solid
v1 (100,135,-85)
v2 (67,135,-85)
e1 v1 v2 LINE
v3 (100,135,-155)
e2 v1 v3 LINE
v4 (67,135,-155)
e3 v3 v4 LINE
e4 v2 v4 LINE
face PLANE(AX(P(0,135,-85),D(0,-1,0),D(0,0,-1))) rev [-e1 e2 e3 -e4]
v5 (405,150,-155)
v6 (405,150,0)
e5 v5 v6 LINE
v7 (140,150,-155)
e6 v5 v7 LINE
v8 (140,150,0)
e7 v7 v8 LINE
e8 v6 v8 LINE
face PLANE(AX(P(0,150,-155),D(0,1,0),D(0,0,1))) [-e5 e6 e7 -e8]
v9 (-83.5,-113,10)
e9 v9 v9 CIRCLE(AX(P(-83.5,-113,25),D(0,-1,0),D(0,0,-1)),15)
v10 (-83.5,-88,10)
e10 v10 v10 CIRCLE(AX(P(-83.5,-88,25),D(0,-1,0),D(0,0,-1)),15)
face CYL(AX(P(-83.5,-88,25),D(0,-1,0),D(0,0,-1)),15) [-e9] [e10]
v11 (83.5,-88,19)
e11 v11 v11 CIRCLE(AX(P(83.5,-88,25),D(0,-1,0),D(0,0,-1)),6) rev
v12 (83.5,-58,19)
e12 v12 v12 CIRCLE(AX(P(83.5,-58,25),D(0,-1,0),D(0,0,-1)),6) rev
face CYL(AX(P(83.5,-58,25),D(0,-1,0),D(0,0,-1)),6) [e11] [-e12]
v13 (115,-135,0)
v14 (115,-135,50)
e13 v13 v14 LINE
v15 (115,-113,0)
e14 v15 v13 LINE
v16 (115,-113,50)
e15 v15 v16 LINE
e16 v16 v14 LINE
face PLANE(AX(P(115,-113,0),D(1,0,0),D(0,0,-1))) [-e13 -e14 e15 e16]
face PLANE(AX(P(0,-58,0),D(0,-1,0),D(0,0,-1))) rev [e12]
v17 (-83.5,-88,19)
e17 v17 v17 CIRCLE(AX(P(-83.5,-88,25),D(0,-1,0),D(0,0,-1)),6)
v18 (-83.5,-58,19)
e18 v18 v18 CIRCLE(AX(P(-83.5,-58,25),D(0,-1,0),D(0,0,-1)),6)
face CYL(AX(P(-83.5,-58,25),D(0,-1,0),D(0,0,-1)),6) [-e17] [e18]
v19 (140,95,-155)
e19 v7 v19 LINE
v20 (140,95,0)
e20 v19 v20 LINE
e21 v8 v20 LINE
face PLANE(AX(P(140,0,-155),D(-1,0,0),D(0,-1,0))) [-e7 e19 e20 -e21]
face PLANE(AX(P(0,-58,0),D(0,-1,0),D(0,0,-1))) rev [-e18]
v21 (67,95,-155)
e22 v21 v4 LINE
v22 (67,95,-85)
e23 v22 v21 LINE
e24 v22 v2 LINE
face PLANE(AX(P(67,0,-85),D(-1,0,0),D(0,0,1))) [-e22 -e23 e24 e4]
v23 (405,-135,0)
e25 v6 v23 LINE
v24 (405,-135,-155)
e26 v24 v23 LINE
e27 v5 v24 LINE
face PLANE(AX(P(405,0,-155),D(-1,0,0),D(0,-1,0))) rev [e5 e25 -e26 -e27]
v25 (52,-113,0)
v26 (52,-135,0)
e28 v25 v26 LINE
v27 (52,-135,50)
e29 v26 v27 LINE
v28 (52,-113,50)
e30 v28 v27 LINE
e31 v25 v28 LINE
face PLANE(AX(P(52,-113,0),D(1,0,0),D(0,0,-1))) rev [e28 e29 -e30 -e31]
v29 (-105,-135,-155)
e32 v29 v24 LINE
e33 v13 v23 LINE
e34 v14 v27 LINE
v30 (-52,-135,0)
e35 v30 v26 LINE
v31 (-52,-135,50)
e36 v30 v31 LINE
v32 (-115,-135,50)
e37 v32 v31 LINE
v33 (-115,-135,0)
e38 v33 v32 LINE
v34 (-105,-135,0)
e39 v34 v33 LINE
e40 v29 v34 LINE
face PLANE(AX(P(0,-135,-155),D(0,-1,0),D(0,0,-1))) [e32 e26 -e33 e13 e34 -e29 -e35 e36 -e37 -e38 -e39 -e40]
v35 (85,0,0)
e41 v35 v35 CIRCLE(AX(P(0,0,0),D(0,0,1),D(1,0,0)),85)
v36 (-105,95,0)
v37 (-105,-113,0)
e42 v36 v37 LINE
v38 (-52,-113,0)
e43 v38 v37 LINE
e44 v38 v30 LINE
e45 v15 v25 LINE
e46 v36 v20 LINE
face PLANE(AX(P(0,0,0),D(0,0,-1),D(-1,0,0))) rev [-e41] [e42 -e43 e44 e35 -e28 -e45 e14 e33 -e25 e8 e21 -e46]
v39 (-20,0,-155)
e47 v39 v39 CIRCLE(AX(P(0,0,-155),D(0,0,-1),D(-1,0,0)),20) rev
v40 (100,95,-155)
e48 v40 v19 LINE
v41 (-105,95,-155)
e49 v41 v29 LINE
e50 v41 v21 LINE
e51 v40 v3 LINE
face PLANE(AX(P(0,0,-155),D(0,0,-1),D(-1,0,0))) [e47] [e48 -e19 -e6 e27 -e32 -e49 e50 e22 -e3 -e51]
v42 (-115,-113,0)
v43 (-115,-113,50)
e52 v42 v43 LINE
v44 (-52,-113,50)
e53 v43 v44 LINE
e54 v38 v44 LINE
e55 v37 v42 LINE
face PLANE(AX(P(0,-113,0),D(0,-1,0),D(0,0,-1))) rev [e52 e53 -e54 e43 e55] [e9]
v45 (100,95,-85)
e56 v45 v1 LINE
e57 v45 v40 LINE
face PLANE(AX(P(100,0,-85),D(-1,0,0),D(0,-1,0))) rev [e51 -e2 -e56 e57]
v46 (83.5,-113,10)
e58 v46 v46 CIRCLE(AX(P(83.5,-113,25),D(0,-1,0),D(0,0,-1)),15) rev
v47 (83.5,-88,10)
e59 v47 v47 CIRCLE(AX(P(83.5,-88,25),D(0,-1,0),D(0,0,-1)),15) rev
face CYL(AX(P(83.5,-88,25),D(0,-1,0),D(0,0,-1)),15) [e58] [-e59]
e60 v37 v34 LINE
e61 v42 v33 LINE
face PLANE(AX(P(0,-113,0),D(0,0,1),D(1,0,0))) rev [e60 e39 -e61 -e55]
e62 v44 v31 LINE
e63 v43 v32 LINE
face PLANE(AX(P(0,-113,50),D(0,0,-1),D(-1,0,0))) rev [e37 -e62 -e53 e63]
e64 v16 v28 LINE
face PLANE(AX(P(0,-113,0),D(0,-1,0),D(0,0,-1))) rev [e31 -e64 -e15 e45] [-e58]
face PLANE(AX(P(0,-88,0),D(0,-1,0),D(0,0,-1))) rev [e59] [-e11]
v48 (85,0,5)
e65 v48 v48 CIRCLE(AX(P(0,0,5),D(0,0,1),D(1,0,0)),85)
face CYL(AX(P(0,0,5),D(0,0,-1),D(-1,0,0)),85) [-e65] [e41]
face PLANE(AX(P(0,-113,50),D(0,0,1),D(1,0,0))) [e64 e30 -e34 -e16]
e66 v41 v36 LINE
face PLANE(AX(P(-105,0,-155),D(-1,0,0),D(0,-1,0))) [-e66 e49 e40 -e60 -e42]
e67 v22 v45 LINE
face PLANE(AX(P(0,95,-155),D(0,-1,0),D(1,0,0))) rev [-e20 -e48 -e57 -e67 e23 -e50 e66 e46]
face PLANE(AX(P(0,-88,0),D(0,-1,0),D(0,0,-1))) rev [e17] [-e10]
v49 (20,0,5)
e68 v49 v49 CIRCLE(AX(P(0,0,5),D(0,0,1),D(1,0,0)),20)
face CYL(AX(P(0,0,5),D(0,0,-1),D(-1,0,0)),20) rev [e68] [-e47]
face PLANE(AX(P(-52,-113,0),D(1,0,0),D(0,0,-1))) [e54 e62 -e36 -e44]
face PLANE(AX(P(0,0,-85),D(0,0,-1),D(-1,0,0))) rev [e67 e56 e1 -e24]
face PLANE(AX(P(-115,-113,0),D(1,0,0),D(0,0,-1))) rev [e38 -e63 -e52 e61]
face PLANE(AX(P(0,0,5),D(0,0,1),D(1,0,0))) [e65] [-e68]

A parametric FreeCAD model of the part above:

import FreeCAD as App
import Part
import Sketcher

V = App.Vector
Q = App.Units.Quantity

doc = App.newDocument("Part")
params = doc.addObject("Spreadsheet::Sheet", "Params")
for row, (alias, value) in enumerate([
    ("sketch1_diameter", "170 mm"),
    ("sketch1_diameter2", "40 mm"),
    ("pad1_length", "5 mm"),
    ("sketch2_diameter", "40 mm"),
    ("sketch2_width", "245 mm"),
    ("sketch2_width2", "265 mm"),
    ("sketch2_height", "230 mm"),
    ("sketch2_height2", "55 mm"),
    ("pad2_length", "155 mm"),
    ("sketch3_width", "33 mm"),
    ("sketch3_height", "40 mm"),
    ("pad3_length", "70 mm"),
    ("sketch4_diameter", "30 mm"),
    ("sketch4_width", "63 mm"),
    ("sketch4_height", "50 mm"),
    ("pad4_length", "22 mm"),
    ("sketch5_diameter", "30 mm"),
    ("sketch5_diameter2", "12 mm"),
    ("pad5_length", "47 mm"),
    ("sketch6_diameter", "12 mm"),
    ("pad6_length", "77 mm"),
], start=1):
    params.set(f"A{row}", alias)
    params.set(f"B{row}", "=" + value)
    params.setAlias(f"B{row}", alias)

body = doc.addObject("PartDesign::Body", "Body")

# Sketch on XY plane
sketch1 = doc.addObject("Sketcher::SketchObject", "Sketch")
body.addObject(sketch1)
sketch1.AttachmentSupport = (doc.XY_Plane, [""])
sketch1.MapMode = "FlatFace"
sketch1.addGeometry(Part.Circle(V(0, 0, 0), V(0, 0, 1), 85), False)
sketch1.addGeometry(Part.Circle(V(0, 0, 0), V(0, 0, 1), 20), False)
sketch1.addConstraint(Sketcher.Constraint("Coincident", 0, 3, -1, 1))
sketch1.addConstraint(Sketcher.Constraint("Coincident", 1, 3, -1, 1))
sketch1.addConstraint(Sketcher.Constraint("Diameter", 0, Q("170 mm")))
sketch1.addConstraint(Sketcher.Constraint("Diameter", 1, Q("40 mm")))
sketch1.setExpression("Constraints[2]", "Params.sketch1_diameter")
sketch1.setExpression("Constraints[3]", "Params.sketch1_diameter2")
pad1 = doc.addObject("PartDesign::Pad", "Pad")
body.addObject(pad1)
pad1.Profile = sketch1
pad1.setExpression("Length", "Params.pad1_length")

# Sketch on XY plane
sketch2 = doc.addObject("Sketcher::SketchObject", "Sketch001")
body.addObject(sketch2)
sketch2.AttachmentSupport = (doc.XY_Plane, [""])
sketch2.MapMode = "FlatFace"
sketch2.AttachmentOffset = App.Placement(V(0, 0, -155), App.Rotation())
sketch2.addGeometry(Part.LineSegment(V(-105, -135, 0), V(-105, 95, 0)), False)
sketch2.addGeometry(Part.LineSegment(V(-105, 95, 0), V(140, 95, 0)), False)
sketch2.addGeometry(Part.LineSegment(V(140, 95, 0), V(140, 150, 0)), False)
sketch2.addGeometry(Part.LineSegment(V(140, 150, 0), V(405, 150, 0)), False)
sketch2.addGeometry(Part.LineSegment(V(405, 150, 0), V(405, -135, 0)), False)
sketch2.addGeometry(Part.LineSegment(V(405, -135, 0), V(-105, -135, 0)), False)
sketch2.addGeometry(Part.Circle(V(0, 0, 0), V(0, 0, 1), 20), False)
sketch2.addConstraint(Sketcher.Constraint("Coincident", 0, 2, 1, 1))
sketch2.addConstraint(Sketcher.Constraint("Coincident", 1, 2, 2, 1))
sketch2.addConstraint(Sketcher.Constraint("Coincident", 2, 2, 3, 1))
sketch2.addConstraint(Sketcher.Constraint("Coincident", 3, 2, 4, 1))
sketch2.addConstraint(Sketcher.Constraint("Coincident", 4, 2, 5, 1))
sketch2.addConstraint(Sketcher.Constraint("Coincident", 5, 2, 0, 1))
sketch2.addConstraint(Sketcher.Constraint("Vertical", 0))
sketch2.addConstraint(Sketcher.Constraint("Horizontal", 1))
sketch2.addConstraint(Sketcher.Constraint("Vertical", 2))
sketch2.addConstraint(Sketcher.Constraint("Horizontal", 3))
sketch2.addConstraint(Sketcher.Constraint("Vertical", 4))
sketch2.addConstraint(Sketcher.Constraint("Horizontal", 5))
sketch2.addConstraint(Sketcher.Constraint("Coincident", 6, 3, -1, 1))
sketch2.addConstraint(Sketcher.Constraint("Diameter", 6, Q("40 mm")))
sketch2.addConstraint(Sketcher.Constraint("DistanceX", 1, 1, 1, 2, Q("245 mm")))
sketch2.addConstraint(Sketcher.Constraint("DistanceX", 3, 1, 3, 2, Q("265 mm")))
sketch2.addConstraint(Sketcher.Constraint("DistanceY", 0, 1, 0, 2, Q("230 mm")))
sketch2.addConstraint(Sketcher.Constraint("DistanceY", 2, 1, 2, 2, Q("55 mm")))
sketch2.addConstraint(Sketcher.Constraint("DistanceX", 0, 2, -1, 1, Q("105 mm")))
sketch2.addConstraint(Sketcher.Constraint("DistanceY", -1, 1, 0, 2, Q("95 mm")))
sketch2.setExpression("Constraints[13]", "Params.sketch2_diameter")
sketch2.setExpression("Constraints[14]", "Params.sketch2_width")
sketch2.setExpression("Constraints[15]", "Params.sketch2_width2")
sketch2.setExpression("Constraints[16]", "Params.sketch2_height")
sketch2.setExpression("Constraints[17]", "Params.sketch2_height2")
pad2 = doc.addObject("PartDesign::Pad", "Pad001")
body.addObject(pad2)
pad2.Profile = sketch2
pad2.setExpression("Length", "Params.pad2_length")

# Sketch on XY plane
sketch3 = doc.addObject("Sketcher::SketchObject", "Sketch002")
body.addObject(sketch3)
sketch3.AttachmentSupport = (doc.XY_Plane, [""])
sketch3.MapMode = "FlatFace"
sketch3.AttachmentOffset = App.Placement(V(0, 0, -155), App.Rotation())
sketch3.addGeometry(Part.LineSegment(V(100, 135, 0), V(100, 95, 0)), False)
sketch3.addGeometry(Part.LineSegment(V(100, 95, 0), V(67, 95, 0)), False)
sketch3.addGeometry(Part.LineSegment(V(67, 95, 0), V(67, 135, 0)), False)
sketch3.addGeometry(Part.LineSegment(V(67, 135, 0), V(100, 135, 0)), False)
sketch3.addConstraint(Sketcher.Constraint("Coincident", 0, 2, 1, 1))
sketch3.addConstraint(Sketcher.Constraint("Coincident", 1, 2, 2, 1))
sketch3.addConstraint(Sketcher.Constraint("Coincident", 2, 2, 3, 1))
sketch3.addConstraint(Sketcher.Constraint("Coincident", 3, 2, 0, 1))
sketch3.addConstraint(Sketcher.Constraint("Vertical", 0))
sketch3.addConstraint(Sketcher.Constraint("Horizontal", 1))
sketch3.addConstraint(Sketcher.Constraint("Vertical", 2))
sketch3.addConstraint(Sketcher.Constraint("Horizontal", 3))
sketch3.addConstraint(Sketcher.Constraint("DistanceX", 1, 2, 1, 1, Q("33 mm")))
sketch3.addConstraint(Sketcher.Constraint("DistanceY", 0, 2, 0, 1, Q("40 mm")))
sketch3.addConstraint(Sketcher.Constraint("DistanceX", -1, 1, 0, 2, Q("100 mm")))
sketch3.addConstraint(Sketcher.Constraint("DistanceY", -1, 1, 0, 2, Q("95 mm")))
sketch3.setExpression("Constraints[8]", "Params.sketch3_width")
sketch3.setExpression("Constraints[9]", "Params.sketch3_height")
pad3 = doc.addObject("PartDesign::Pad", "Pad002")
body.addObject(pad3)
pad3.Profile = sketch3
pad3.setExpression("Length", "Params.pad3_length")

# Sketch on XZ plane
sketch4 = doc.addObject("Sketcher::SketchObject", "Sketch003")
body.addObject(sketch4)
sketch4.AttachmentSupport = (doc.XZ_Plane, [""])
sketch4.MapMode = "FlatFace"
sketch4.AttachmentOffset = App.Placement(V(0, 0, 135), App.Rotation())
sketch4.addGeometry(Part.LineSegment(V(-115, 50, 0), V(-115, 0, 0)), False)
sketch4.addGeometry(Part.LineSegment(V(-115, 0, 0), V(-52, 0, 0)), False)
sketch4.addGeometry(Part.LineSegment(V(-52, 0, 0), V(-52, 50, 0)), False)
sketch4.addGeometry(Part.LineSegment(V(-52, 50, 0), V(-115, 50, 0)), False)
sketch4.addGeometry(Part.Circle(V(-84, 25, 0), V(0, 0, 1), 15), False)
sketch4.addGeometry(Part.LineSegment(V(52, 50, 0), V(52, 0, 0)), False)
sketch4.addGeometry(Part.LineSegment(V(52, 0, 0), V(115, 0, 0)), False)
sketch4.addGeometry(Part.LineSegment(V(115, 0, 0), V(115, 50, 0)), False)
sketch4.addGeometry(Part.LineSegment(V(115, 50, 0), V(52, 50, 0)), False)
sketch4.addGeometry(Part.Circle(V(84, 25, 0), V(0, 0, 1), 15), False)
sketch4.addConstraint(Sketcher.Constraint("Coincident", 0, 2, 1, 1))
sketch4.addConstraint(Sketcher.Constraint("Coincident", 1, 2, 2, 1))
sketch4.addConstraint(Sketcher.Constraint("Coincident", 2, 2, 3, 1))
sketch4.addConstraint(Sketcher.Constraint("Coincident", 3, 2, 0, 1))
sketch4.addConstraint(Sketcher.Constraint("Coincident", 5, 2, 6, 1))
sketch4.addConstraint(Sketcher.Constraint("Coincident", 6, 2, 7, 1))
sketch4.addConstraint(Sketcher.Constraint("Coincident", 7, 2, 8, 1))
sketch4.addConstraint(Sketcher.Constraint("Coincident", 8, 2, 5, 1))
sketch4.addConstraint(Sketcher.Constraint("Vertical", 0))
sketch4.addConstraint(Sketcher.Constraint("Horizontal", 1))
sketch4.addConstraint(Sketcher.Constraint("Vertical", 2))
sketch4.addConstraint(Sketcher.Constraint("Horizontal", 3))
sketch4.addConstraint(Sketcher.Constraint("Vertical", 5))
sketch4.addConstraint(Sketcher.Constraint("Horizontal", 6))
sketch4.addConstraint(Sketcher.Constraint("Vertical", 7))
sketch4.addConstraint(Sketcher.Constraint("Horizontal", 8))
sketch4.addConstraint(Sketcher.Constraint("Equal", 4, 9))
sketch4.addConstraint(Sketcher.Constraint("Symmetric", 1, 2, 5, 2, -1, 1))
sketch4.addConstraint(Sketcher.Constraint("Symmetric", 4, 3, 9, 3, -2))
sketch4.addConstraint(Sketcher.Constraint("Symmetric", 0, 2, 6, 2, -2))
sketch4.addConstraint(Sketcher.Constraint("Horizontal", 3, 2, 7, 2))
sketch4.addConstraint(Sketcher.Constraint("Diameter", 4, Q("30 mm")))
sketch4.addConstraint(Sketcher.Constraint("DistanceX", 1, 1, 1, 2, Q("63 mm")))
sketch4.addConstraint(Sketcher.Constraint("DistanceY", 0, 2, 0, 1, Q("50 mm")))
sketch4.addConstraint(Sketcher.Constraint("DistanceY", -1, 1, 4, 3, Q("25 mm")))
sketch4.addConstraint(Sketcher.Constraint("DistanceX", 0, 2, -1, 1, Q("115 mm")))
sketch4.addConstraint(Sketcher.Constraint("DistanceX", 4, 3, 9, 3, Q("167 mm")))
sketch4.setExpression("Constraints[21]", "Params.sketch4_diameter")
sketch4.setExpression("Constraints[22]", "Params.sketch4_width")
sketch4.setExpression("Constraints[23]", "Params.sketch4_height")
pad4 = doc.addObject("PartDesign::Pad", "Pad003")
body.addObject(pad4)
pad4.Profile = sketch4
pad4.setExpression("Length", "Params.pad4_length")
pad4.Reversed = True

# Sketch on XZ plane
sketch5 = doc.addObject("Sketcher::SketchObject", "Sketch004")
body.addObject(sketch5)
sketch5.AttachmentSupport = (doc.XZ_Plane, [""])
sketch5.MapMode = "FlatFace"
sketch5.AttachmentOffset = App.Placement(V(0, 0, 135), App.Rotation())
sketch5.addGeometry(Part.Circle(V(-84, 25, 0), V(0, 0, 1), 15), False)
sketch5.addGeometry(Part.Circle(V(-84, 25, 0), V(0, 0, 1), 6), False)
sketch5.addGeometry(Part.Circle(V(84, 25, 0), V(0, 0, 1), 15), False)
sketch5.addGeometry(Part.Circle(V(84, 25, 0), V(0, 0, 1), 6), False)
sketch5.addConstraint(Sketcher.Constraint("Coincident", 1, 3, 0, 3))
sketch5.addConstraint(Sketcher.Constraint("Coincident", 3, 3, 2, 3))
sketch5.addConstraint(Sketcher.Constraint("Equal", 0, 2))
sketch5.addConstraint(Sketcher.Constraint("Equal", 1, 3))
sketch5.addConstraint(Sketcher.Constraint("Symmetric", 0, 3, 2, 3, -2))
sketch5.addConstraint(Sketcher.Constraint("Diameter", 0, Q("30 mm")))
sketch5.addConstraint(Sketcher.Constraint("Diameter", 1, Q("12 mm")))
sketch5.addConstraint(Sketcher.Constraint("DistanceY", -1, 1, 0, 3, Q("25 mm")))
sketch5.addConstraint(Sketcher.Constraint("DistanceX", 0, 3, 2, 3, Q("167 mm")))
sketch5.setExpression("Constraints[5]", "Params.sketch5_diameter")
sketch5.setExpression("Constraints[6]", "Params.sketch5_diameter2")
pad5 = doc.addObject("PartDesign::Pad", "Pad004")
body.addObject(pad5)
pad5.Profile = sketch5
pad5.setExpression("Length", "Params.pad5_length")
pad5.Reversed = True

# Sketch on XZ plane
sketch6 = doc.addObject("Sketcher::SketchObject", "Sketch005")
body.addObject(sketch6)
sketch6.AttachmentSupport = (doc.XZ_Plane, [""])
sketch6.MapMode = "FlatFace"
sketch6.AttachmentOffset = App.Placement(V(0, 0, 135), App.Rotation())
sketch6.addGeometry(Part.Circle(V(-84, 25, 0), V(0, 0, 1), 6), False)
sketch6.addGeometry(Part.Circle(V(84, 25, 0), V(0, 0, 1), 6), False)
sketch6.addConstraint(Sketcher.Constraint("Equal", 0, 1))
sketch6.addConstraint(Sketcher.Constraint("Symmetric", 0, 3, 1, 3, -2))
sketch6.addConstraint(Sketcher.Constraint("Diameter", 0, Q("12 mm")))
sketch6.addConstraint(Sketcher.Constraint("DistanceY", -1, 1, 0, 3, Q("25 mm")))
sketch6.addConstraint(Sketcher.Constraint("DistanceX", 0, 3, 1, 3, Q("167 mm")))
sketch6.setExpression("Constraints[2]", "Params.sketch6_diameter")
pad6 = doc.addObject("PartDesign::Pad", "Pad005")
body.addObject(pad6)
pad6.Profile = sketch6
pad6.setExpression("Length", "Params.pad6_length")
pad6.Reversed = True

doc.recompute()
